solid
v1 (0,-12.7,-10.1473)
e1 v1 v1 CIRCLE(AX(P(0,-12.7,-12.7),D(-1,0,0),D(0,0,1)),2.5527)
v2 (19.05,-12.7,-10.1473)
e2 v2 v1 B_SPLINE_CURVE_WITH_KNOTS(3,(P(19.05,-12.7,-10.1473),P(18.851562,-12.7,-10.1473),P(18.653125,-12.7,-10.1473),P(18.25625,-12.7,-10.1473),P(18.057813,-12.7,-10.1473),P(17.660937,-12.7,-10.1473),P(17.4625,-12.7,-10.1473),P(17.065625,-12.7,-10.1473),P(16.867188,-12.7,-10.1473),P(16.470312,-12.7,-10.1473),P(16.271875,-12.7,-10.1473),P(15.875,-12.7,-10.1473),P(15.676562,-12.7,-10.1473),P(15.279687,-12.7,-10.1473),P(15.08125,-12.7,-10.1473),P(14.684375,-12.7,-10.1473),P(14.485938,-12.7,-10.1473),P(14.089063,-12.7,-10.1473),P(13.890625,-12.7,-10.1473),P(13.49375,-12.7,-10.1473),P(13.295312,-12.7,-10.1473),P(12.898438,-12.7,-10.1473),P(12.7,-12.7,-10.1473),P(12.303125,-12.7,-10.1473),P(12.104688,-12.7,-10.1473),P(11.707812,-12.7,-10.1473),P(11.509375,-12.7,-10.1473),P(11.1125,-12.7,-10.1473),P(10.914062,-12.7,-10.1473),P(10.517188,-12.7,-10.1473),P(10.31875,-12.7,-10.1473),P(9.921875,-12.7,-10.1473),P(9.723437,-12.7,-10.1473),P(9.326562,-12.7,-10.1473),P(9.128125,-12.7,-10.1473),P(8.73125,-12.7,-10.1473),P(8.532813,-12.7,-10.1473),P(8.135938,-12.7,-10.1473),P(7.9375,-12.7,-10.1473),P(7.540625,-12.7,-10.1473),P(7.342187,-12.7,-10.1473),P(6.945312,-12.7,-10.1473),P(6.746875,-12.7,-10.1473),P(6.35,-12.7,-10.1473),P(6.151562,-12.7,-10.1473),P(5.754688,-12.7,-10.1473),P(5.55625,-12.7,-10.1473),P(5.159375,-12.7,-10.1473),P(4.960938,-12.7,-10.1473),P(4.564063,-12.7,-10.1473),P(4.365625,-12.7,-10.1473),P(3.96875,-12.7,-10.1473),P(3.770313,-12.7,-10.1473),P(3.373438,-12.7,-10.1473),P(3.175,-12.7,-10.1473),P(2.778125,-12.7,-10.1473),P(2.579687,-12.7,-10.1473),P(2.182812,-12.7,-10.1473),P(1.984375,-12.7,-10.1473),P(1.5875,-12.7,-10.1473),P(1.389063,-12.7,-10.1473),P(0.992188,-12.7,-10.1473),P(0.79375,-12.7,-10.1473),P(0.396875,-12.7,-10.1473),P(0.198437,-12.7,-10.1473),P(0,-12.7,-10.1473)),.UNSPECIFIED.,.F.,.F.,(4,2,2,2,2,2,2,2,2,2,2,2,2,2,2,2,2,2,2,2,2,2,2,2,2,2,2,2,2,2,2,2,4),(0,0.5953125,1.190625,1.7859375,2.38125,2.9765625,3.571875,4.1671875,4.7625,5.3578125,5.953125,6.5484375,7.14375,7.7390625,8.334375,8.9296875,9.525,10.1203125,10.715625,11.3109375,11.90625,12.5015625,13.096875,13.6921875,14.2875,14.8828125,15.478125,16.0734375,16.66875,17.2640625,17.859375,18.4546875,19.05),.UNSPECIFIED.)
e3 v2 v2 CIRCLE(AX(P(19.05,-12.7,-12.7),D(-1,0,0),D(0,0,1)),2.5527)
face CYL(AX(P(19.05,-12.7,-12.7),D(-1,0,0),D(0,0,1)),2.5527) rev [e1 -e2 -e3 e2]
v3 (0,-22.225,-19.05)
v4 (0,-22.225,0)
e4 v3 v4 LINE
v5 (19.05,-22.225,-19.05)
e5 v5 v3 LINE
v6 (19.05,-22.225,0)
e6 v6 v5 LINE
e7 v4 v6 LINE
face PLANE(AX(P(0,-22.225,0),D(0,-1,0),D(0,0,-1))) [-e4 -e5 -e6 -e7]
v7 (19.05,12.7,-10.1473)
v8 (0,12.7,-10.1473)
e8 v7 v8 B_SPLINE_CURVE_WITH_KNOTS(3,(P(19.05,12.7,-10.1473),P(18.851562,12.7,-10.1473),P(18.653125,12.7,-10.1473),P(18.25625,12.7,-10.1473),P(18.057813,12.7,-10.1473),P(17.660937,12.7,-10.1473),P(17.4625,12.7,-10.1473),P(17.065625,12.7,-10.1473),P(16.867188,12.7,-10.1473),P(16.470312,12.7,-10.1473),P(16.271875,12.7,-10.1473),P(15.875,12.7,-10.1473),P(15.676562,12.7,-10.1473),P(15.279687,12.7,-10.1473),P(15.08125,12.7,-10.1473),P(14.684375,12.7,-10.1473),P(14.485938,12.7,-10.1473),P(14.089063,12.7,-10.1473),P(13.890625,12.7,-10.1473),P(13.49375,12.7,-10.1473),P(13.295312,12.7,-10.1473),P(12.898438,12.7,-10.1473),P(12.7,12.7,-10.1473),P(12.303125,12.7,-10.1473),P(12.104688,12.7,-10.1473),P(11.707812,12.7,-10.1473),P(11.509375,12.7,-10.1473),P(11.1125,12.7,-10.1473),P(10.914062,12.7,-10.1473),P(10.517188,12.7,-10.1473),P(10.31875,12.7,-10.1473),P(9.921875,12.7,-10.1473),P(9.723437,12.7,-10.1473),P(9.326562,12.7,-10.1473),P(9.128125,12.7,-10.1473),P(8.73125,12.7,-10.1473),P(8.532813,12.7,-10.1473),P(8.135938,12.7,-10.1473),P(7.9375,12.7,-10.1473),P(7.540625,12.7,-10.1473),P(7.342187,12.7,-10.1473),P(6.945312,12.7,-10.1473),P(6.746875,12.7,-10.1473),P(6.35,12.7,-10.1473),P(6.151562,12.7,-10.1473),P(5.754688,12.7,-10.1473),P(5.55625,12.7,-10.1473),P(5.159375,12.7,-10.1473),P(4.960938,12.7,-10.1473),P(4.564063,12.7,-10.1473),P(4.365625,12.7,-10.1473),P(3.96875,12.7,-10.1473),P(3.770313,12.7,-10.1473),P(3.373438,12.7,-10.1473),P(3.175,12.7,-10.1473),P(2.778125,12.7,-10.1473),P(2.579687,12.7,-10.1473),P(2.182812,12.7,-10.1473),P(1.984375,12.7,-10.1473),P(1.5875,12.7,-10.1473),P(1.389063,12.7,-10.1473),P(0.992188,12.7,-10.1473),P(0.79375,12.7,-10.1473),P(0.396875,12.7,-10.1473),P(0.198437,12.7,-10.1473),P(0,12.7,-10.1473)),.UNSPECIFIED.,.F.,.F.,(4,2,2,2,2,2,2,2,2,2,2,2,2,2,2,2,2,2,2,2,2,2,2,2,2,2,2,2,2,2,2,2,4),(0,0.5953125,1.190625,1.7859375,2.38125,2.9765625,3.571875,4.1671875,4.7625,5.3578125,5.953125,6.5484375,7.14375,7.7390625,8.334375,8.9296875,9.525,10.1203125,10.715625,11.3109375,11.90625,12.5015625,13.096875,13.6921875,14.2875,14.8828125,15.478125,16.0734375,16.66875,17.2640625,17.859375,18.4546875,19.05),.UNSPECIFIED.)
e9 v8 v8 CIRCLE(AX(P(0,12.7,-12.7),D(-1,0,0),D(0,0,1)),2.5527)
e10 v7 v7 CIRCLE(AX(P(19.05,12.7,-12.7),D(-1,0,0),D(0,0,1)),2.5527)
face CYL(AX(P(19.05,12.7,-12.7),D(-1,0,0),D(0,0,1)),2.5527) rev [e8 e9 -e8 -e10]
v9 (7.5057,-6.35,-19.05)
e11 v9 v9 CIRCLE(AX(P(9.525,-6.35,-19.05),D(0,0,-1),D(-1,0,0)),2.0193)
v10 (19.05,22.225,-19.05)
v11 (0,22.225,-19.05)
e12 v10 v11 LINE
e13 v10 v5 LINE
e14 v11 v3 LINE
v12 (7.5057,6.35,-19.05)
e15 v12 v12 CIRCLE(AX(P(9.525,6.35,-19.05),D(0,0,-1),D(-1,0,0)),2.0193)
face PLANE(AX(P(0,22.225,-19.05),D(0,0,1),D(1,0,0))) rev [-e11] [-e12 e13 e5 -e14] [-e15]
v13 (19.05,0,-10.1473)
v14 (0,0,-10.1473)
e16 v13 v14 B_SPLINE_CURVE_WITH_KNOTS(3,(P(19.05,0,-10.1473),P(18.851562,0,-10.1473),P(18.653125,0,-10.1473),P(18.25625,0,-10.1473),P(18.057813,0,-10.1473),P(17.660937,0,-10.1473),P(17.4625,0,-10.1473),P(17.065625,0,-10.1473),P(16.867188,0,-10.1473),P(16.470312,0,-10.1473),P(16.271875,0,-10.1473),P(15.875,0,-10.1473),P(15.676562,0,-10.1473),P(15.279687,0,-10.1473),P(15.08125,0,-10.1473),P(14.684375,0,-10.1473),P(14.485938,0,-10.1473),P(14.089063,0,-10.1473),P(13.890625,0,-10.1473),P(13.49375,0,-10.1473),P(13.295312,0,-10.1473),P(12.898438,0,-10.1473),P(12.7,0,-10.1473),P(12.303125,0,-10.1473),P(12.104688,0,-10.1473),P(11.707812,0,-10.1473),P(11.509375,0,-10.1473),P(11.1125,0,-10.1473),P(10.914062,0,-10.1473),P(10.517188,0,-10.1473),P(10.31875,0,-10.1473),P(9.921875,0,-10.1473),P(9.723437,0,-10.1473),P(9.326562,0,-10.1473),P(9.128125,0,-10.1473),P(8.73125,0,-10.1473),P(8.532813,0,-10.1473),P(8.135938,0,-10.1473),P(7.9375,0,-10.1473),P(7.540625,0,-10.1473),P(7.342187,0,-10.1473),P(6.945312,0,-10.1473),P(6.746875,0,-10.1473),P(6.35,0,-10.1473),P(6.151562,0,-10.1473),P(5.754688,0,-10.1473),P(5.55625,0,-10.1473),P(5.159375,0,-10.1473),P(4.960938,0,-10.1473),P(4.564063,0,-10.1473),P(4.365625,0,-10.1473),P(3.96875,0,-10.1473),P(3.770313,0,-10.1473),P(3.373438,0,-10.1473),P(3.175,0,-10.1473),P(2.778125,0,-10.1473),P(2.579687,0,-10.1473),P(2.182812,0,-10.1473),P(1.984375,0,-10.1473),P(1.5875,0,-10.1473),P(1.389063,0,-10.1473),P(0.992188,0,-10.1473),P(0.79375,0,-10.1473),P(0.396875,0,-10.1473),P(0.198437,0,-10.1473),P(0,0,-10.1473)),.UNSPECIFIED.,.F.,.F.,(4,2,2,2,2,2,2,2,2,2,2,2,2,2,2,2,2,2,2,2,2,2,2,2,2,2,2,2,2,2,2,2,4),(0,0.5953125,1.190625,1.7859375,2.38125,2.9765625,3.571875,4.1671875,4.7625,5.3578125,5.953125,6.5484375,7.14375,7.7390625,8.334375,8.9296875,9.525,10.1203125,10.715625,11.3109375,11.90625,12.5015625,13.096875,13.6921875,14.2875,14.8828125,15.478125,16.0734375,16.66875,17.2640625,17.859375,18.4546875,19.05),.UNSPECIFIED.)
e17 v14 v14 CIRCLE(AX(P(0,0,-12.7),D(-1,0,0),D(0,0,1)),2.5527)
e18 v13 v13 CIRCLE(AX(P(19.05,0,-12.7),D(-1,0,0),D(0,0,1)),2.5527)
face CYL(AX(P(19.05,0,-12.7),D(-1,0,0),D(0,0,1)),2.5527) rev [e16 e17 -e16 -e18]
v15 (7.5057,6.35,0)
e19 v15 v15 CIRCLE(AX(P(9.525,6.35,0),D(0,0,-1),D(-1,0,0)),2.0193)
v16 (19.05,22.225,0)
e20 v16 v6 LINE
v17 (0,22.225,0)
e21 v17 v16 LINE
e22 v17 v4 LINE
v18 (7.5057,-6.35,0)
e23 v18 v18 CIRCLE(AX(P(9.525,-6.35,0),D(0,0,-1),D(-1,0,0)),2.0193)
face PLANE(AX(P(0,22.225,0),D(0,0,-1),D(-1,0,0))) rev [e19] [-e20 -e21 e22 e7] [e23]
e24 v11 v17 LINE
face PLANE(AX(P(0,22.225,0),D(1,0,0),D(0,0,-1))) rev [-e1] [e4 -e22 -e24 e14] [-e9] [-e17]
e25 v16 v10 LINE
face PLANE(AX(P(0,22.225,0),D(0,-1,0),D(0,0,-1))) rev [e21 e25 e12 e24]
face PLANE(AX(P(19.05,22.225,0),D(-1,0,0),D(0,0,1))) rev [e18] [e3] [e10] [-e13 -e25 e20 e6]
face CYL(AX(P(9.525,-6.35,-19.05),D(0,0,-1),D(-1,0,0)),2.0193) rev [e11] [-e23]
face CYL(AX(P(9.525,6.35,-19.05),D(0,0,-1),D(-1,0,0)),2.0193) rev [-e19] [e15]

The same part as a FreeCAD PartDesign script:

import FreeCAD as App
import Part
import Sketcher
from FreeCAD import Vector
Q = App.Units.Quantity

doc = App.newDocument("Part")
body = doc.addObject("PartDesign::Body", "Body")

# Sketch on XZ plane
sketch1 = body.newObject("Sketcher::SketchObject", "Sketch")
sketch1.AttachmentSupport = (doc.getObject("XZ_Plane"), [""])
sketch1.MapMode = "FlatFace"
sketch1.addGeometry(Part.LineSegment(Vector(0, -19, 0), Vector(0, 0, 0)), False)
sketch1.addGeometry(Part.LineSegment(Vector(0, 0, 0), Vector(19, 0, 0)), False)
sketch1.addGeometry(Part.LineSegment(Vector(19, 0, 0), Vector(19, -19, 0)), False)
sketch1.addGeometry(Part.LineSegment(Vector(19, -19, 0), Vector(0, -19, 0)), False)
sketch1.addConstraint(Sketcher.Constraint("Coincident", 0, 2, 1, 1))
sketch1.addConstraint(Sketcher.Constraint("Coincident", 1, 2, 2, 1))
sketch1.addConstraint(Sketcher.Constraint("Coincident", 2, 2, 3, 1))
sketch1.addConstraint(Sketcher.Constraint("Coincident", 3, 2, 0, 1))
sketch1.addConstraint(Sketcher.Constraint("Vertical", 0))
sketch1.addConstraint(Sketcher.Constraint("Horizontal", 1))
sketch1.addConstraint(Sketcher.Constraint("Vertical", 2))
sketch1.addConstraint(Sketcher.Constraint("Horizontal", 3))
sketch1.addConstraint(Sketcher.Constraint("Coincident", 0, 2, -1, 1))
sketch1.addConstraint(Sketcher.Constraint("Equal", 3, 0))
sketch1.addConstraint(Sketcher.Constraint("DistanceX", 1, 1, 1, 2, Q("0.75 in")))
pad1 = body.newObject("PartDesign::Pad", "Pad")
pad1.Profile = sketch1
pad1.Length = Q("1.75 in")
pad1.Midplane = True

# Sketch on YZ plane
sketch2 = body.newObject("Sketcher::SketchObject", "Sketch001")
sketch2.AttachmentSupport = (doc.getObject("YZ_Plane"), [""])
sketch2.MapMode = "FlatFace"
sketch2.addGeometry(Part.Circle(Vector(12.7, -12.7, 0), Vector(0, 0, 1), 2.6), False)
sketch2.addGeometry(Part.Circle(Vector(-12.7, -12.7, 0), Vector(0, 0, 1), 2.6), False)
sketch2.addGeometry(Part.Circle(Vector(0, -12.7, 0), Vector(0, 0, 1), 2.6), False)
sketch2.addConstraint(Sketcher.Constraint("Equal", 0, 1))
sketch2.addConstraint(Sketcher.Constraint("Equal", 1, 2))
sketch2.addConstraint(Sketcher.Constraint("Symmetric", 0, 3, 1, 3, -2))
sketch2.addConstraint(Sketcher.Constraint("PointOnObject", 2, 3, -2))
sketch2.addConstraint(Sketcher.Constraint("Horizontal", 1, 3, 2, 3))
sketch2.addConstraint(Sketcher.Constraint("Diameter", 0, Q("0.201 in")))
sketch2.addConstraint(Sketcher.Constraint("DistanceX", 1, 3, 0, 3, Q("1 in")))
sketch2.addConstraint(Sketcher.Constraint("DistanceY", 0, 3, -1, 1, Q("0.5 in")))
pocket1 = body.newObject("PartDesign::Pocket", "Pocket")
pocket1.Profile = sketch2
pocket1.Type = "ThroughAll"
pocket1.Reversed = True

# Sketch on XY plane
sketch3 = body.newObject("Sketcher::SketchObject", "Sketch002")
sketch3.AttachmentSupport = (doc.getObject("XY_Plane"), [""])
sketch3.MapMode = "FlatFace"
sketch3.AttachmentOffset = App.Placement(Vector(0, 0, -0.75 * 25.4), App.Rotation())
sketch3.addGeometry(Part.Circle(Vector(9.5, -6.3, 0), Vector(0, 0, 1), 2), False)
sketch3.addGeometry(Part.Circle(Vector(9.5, 6.3, 0), Vector(0, 0, 1), 2), False)
sketch3.addConstraint(Sketcher.Constraint("Equal", 0, 1))
sketch3.addConstraint(Sketcher.Constraint("Symmetric", 0, 3, 1, 3, -1))
sketch3.addConstraint(Sketcher.Constraint("Diameter", 0, Q("0.159 in")))
sketch3.addConstraint(Sketcher.Constraint("DistanceY", 0, 3, 1, 3, Q("0.5 in")))
sketch3.addConstraint(Sketcher.Constraint("DistanceX", -1, 1, 0, 3, Q("0.375 in")))
doc.recompute()
hole = body.newObject("PartDesign::Hole", "Hole")
hole.Profile = sketch3
hole.ThreadType = "None"
hole.Diameter = Q("0.159 in")
hole.DepthType = "ThroughAll"
hole.Reversed = True

doc.recompute()
